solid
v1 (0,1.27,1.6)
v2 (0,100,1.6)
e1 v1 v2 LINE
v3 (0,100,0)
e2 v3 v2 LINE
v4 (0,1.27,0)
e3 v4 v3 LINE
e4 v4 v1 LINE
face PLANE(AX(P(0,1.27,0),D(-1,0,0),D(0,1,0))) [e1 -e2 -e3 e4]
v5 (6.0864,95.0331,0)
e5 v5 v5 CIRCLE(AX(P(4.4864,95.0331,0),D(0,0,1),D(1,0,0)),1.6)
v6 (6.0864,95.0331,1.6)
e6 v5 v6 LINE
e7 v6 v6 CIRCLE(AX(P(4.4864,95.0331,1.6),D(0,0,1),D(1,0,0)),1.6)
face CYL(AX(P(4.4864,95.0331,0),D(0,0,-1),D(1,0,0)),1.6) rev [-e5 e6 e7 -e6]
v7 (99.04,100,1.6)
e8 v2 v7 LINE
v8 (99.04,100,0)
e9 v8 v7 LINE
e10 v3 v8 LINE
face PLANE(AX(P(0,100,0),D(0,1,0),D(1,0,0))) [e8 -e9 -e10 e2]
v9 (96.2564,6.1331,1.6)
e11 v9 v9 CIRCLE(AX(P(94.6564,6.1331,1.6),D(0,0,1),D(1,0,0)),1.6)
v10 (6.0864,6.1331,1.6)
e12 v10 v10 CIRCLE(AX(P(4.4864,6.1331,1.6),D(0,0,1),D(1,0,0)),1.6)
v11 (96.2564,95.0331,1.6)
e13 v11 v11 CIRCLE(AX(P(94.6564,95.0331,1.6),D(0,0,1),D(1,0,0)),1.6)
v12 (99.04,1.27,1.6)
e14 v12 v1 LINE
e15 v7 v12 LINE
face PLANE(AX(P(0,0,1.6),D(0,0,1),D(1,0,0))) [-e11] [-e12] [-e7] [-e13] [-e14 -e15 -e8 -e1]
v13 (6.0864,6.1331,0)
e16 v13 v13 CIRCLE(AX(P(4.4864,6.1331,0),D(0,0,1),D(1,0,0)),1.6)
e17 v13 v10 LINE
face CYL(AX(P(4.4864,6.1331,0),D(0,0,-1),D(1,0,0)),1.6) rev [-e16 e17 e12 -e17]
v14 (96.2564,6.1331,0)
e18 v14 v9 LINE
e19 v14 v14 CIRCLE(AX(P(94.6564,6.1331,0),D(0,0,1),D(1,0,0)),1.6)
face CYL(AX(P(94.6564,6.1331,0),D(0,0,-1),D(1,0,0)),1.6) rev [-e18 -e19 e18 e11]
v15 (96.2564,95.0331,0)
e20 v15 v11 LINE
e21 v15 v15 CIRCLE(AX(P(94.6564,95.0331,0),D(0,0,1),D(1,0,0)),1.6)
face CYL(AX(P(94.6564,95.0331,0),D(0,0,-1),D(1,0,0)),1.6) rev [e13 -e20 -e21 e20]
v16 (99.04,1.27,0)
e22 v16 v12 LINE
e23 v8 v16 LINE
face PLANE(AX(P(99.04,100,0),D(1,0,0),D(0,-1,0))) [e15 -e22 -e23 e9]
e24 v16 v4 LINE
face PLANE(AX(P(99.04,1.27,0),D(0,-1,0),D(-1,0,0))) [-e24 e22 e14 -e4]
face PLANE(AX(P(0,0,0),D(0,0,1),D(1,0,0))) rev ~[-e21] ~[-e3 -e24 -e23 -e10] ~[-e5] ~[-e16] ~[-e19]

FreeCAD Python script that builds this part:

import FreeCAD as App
import Part
import Sketcher
Q = App.Units.Quantity


def add_polygon(sketch, points):
    """Adds a closed chain of lines whose ends are joined by coincident constraints."""
    first, n = sketch.GeometryCount, len(points)
    for a, b in zip(points, points[1:] + points[:1]):
        sketch.addGeometry(Part.LineSegment(App.Vector(*a, 0), App.Vector(*b, 0)), False)
    for i in range(n):
        sketch.addConstraint(Sketcher.Constraint("Coincident", first + i, 2, first + (i + 1) % n, 1))

doc = App.newDocument("Part")
body = doc.addObject("PartDesign::Body", "Body")

sketch1 = doc.addObject("Sketcher::SketchObject", "Sketch")
body.addObject(sketch1)
sketch1.AttachmentSupport = (doc.XY_Plane, [""])
sketch1.MapMode = "FlatFace"
add_polygon(sketch1, [(99.04, 100), (0, 100), (0, 1.27), (99.04, 1.27)])
sketch1.addGeometry(Part.Circle(App.Vector(4.4864, 6.1331, 0), App.Vector(0, 0, 1), 1.6), False)
sketch1.addGeometry(Part.Circle(App.Vector(94.6564, 6.1331, 0), App.Vector(0, 0, 1), 1.6), False)
sketch1.addGeometry(Part.Circle(App.Vector(4.4864, 95.0331, 0), App.Vector(0, 0, 1), 1.6), False)
sketch1.addGeometry(Part.Circle(App.Vector(94.6564, 95.0331, 0), App.Vector(0, 0, 1), 1.6), False)
sketch1.addConstraint([
    Sketcher.Constraint("Horizontal", 0),
    Sketcher.Constraint("Vertical", 1),
    Sketcher.Constraint("Horizontal", 2),
    Sketcher.Constraint("Vertical", 3),
    Sketcher.Constraint("Equal", 4, 5),
    Sketcher.Constraint("Equal", 5, 6),
    Sketcher.Constraint("Equal", 6, 7),
    Sketcher.Constraint("PointOnObject", 0, 2, -2),
    Sketcher.Constraint("Horizontal", 4, 3, 5, 3),
    Sketcher.Constraint("Horizontal", 6, 3, 7, 3),
    Sketcher.Constraint("Vertical", 4, 3, 6, 3),
    Sketcher.Constraint("Vertical", 5, 3, 7, 3),
    Sketcher.Constraint("Diameter", 4, 3.2),
    Sketcher.Constraint("DistanceY", 4, 3, 6, 3, Q("3.5 in")),
    Sketcher.Constraint("DistanceY", 1, 2, 1, 1, Q("3.887 in")),
    Sketcher.Constraint("DistanceY", -1, 1, 1, 2, Q("0.05 in")),
    Sketcher.Constraint("DistanceX", 4, 3, 5, 3, Q("3.55 in")),
    Sketcher.Constraint("DistanceX", 0, 2, 0, 1, 99.04),
    Sketcher.Constraint("DistanceX", -1, 1, 4, 3, 4.4864),
    Sketcher.Constraint("DistanceY", -1, 1, 4, 3, 6.133),
])
pad1 = doc.addObject("PartDesign::Pad", "Pad")
body.addObject(pad1)
pad1.Profile = sketch1
pad1.Length = Q("0.0629921 in")

doc.recompute()
